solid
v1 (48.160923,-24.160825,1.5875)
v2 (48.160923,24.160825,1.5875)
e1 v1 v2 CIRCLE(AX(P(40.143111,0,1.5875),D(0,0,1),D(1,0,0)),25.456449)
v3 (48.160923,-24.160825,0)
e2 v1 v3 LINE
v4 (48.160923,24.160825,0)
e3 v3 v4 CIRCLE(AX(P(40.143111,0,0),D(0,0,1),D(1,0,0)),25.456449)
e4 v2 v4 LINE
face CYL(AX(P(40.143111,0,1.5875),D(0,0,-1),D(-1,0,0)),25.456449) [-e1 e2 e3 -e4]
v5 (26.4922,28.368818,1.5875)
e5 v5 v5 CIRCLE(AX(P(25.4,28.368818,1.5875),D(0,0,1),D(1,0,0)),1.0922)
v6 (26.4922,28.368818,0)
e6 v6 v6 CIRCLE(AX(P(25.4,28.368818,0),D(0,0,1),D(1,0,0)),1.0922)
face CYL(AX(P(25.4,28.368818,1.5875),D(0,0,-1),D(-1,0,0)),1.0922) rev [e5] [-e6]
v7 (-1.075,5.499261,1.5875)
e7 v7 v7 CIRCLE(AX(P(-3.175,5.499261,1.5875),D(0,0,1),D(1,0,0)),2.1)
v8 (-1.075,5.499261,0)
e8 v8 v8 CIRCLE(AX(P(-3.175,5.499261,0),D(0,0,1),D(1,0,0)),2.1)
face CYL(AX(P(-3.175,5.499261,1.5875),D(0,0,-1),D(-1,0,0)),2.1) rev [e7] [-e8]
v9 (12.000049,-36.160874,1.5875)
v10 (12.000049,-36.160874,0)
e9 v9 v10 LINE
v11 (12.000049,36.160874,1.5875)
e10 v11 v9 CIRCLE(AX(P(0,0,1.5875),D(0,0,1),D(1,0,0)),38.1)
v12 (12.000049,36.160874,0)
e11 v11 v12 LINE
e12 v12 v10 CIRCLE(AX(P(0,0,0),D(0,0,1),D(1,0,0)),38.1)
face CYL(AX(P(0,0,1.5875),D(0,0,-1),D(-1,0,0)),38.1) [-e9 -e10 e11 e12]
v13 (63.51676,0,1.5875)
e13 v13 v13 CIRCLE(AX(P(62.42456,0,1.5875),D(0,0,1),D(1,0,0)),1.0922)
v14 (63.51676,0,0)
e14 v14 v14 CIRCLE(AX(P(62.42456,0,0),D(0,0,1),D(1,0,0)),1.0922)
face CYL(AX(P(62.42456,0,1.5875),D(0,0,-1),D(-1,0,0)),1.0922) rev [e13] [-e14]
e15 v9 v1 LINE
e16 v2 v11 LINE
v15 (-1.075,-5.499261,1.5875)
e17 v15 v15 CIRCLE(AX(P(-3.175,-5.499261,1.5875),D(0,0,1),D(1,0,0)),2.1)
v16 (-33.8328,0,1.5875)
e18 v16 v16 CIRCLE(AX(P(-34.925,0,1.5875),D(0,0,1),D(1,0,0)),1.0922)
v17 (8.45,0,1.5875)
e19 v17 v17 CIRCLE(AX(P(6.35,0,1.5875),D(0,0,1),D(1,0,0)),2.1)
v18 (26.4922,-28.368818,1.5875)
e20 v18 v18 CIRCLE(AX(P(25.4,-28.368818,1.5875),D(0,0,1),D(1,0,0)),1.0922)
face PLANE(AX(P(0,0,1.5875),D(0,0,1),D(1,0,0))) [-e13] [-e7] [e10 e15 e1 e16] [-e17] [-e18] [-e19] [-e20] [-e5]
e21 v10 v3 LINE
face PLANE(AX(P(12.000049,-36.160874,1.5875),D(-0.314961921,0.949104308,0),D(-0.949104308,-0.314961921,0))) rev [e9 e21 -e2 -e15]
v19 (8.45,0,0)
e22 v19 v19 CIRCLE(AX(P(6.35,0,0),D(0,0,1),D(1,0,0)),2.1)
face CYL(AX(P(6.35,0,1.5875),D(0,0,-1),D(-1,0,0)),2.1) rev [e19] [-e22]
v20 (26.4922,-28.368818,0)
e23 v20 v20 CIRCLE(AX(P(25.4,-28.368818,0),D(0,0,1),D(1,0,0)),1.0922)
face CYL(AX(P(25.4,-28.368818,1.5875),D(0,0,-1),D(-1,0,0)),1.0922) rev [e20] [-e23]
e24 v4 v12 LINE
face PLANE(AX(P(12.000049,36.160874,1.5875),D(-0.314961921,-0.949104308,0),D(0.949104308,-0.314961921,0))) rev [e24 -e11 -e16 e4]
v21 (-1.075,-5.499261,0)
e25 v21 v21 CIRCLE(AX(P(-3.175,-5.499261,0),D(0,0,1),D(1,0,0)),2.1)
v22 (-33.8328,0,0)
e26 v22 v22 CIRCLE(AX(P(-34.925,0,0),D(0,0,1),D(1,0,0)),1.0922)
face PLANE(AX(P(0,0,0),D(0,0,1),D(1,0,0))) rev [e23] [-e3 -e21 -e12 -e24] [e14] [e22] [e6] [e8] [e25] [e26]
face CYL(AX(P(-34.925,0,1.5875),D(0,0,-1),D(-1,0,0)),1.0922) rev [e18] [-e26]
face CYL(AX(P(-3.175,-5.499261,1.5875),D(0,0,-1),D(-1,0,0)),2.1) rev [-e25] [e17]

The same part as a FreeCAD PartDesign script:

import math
import FreeCAD as App
import Part
import Sketcher
from FreeCAD import Vector
Q = App.Units.Quantity

doc = App.newDocument("Part")
params = doc.addObject("Spreadsheet::Sheet", "Params")
for row, (alias, value) in enumerate([
    ("sketch1_radius", "1.5 in"),
    ("sketch1_diameter", "0.086 in"),
    ("sketch1_length", "1.5 in"),
    ("pad1_length", "0.0625 in"),
], start=1):
    params.set(f"A{row}", alias)
    params.set(f"B{row}", "=" + value)
    params.setAlias(f"B{row}", alias)

body = doc.addObject("PartDesign::Body", "Body")

sketch1 = body.newObject("Sketcher::SketchObject", "Sketch")
sketch1.AttachmentSupport = (doc.getObject("XY_Plane"), [""])
sketch1.MapMode = "FlatFace"
sketch1.addGeometry([
    Part.LineSegment(Vector(48.2, 24.2, 0), Vector(12, 36.2, 0)),
    Part.ArcOfCircle(Part.Circle(Vector(0, 0, 0), Vector(0, 0, 1), 38.1), math.radians(72), math.radians(288)),
    Part.LineSegment(Vector(12, -36.2, 0), Vector(48.2, -24.2, 0)),
    Part.ArcOfCircle(Part.Circle(Vector(40.1, 0, 0), Vector(0, 0, 1), 25.5), math.radians(-72), math.radians(72)),
    Part.Circle(Vector(25.4, -28.4, 0), Vector(0, 0, 1), 1.1),
    Part.Circle(Vector(62.4, 0, 0), Vector(0, 0, 1), 1.1),
    Part.Circle(Vector(6.3, 0, 0), Vector(0, 0, 1), 2.1),
    Part.Circle(Vector(-3.2, -5.5, 0), Vector(0, 0, 1), 2.1),
    Part.Circle(Vector(-34.9, 0, 0), Vector(0, 0, 1), 1.1),
    Part.Circle(Vector(25.4, 28.4, 0), Vector(0, 0, 1), 1.1),
    Part.Circle(Vector(-3.2, 5.5, 0), Vector(0, 0, 1), 2.1),
], False)
sketch1.addConstraint([
    Sketcher.Constraint("Tangent", 0, 2, 1, 1),
    Sketcher.Constraint("Tangent", 1, 2, 2, 1),
    Sketcher.Constraint("Tangent", 2, 2, 3, 1),
    Sketcher.Constraint("Tangent", 3, 2, 0, 1),
    Sketcher.Constraint("Coincident", 1, 3, -1, 1),
    Sketcher.Constraint("Equal", 4, 5),
    Sketcher.Constraint("Equal", 6, 7),
    Sketcher.Constraint("Equal", 5, 8),
    Sketcher.Constraint("Equal", 8, 9),
    Sketcher.Constraint("Equal", 7, 10),
    Sketcher.Constraint("Symmetric", 4, 3, 9, 3, -1),
    Sketcher.Constraint("Symmetric", 7, 3, 10, 3, -1),
    Sketcher.Constraint("PointOnObject", 3, 3, -1),
    Sketcher.Constraint("PointOnObject", 5, 3, -1),
    Sketcher.Constraint("PointOnObject", 6, 3, -1),
    Sketcher.Constraint("PointOnObject", 8, 3, -1),
    Sketcher.Constraint("Radius", 1, Q("1.5 in")),
    Sketcher.Constraint("Diameter", 4, Q("0.086 in")),
    Sketcher.Constraint("DistanceX", -1, 1, 4, 3, Q("1 in")),
    Sketcher.Constraint("Distance", 0, Q("1.5 in")),
    Sketcher.Constraint("Diameter", 6, 4.2),
    Sketcher.Constraint("DistanceX", -1, 1, 6, 3, Q("0.25 in")),
    Sketcher.Constraint("DistanceX", 8, 3, 7, 3, Q("1.25 in")),
    Sketcher.Constraint("DistanceX", 7, 3, -1, 1, Q("0.125 in")),
    Sketcher.Constraint("Radius", 3, 25.456449),
    Sketcher.Constraint("DistanceX", -1, 1, 5, 3, 62.42456),
    Sketcher.Constraint("DistanceY", 7, 3, -1, 1, 5.499261),
    Sketcher.Constraint("DistanceY", 7, 3, 9, 3, 33.868079),
])
sketch1.setExpression("Constraints[16]", "Params.sketch1_radius")
sketch1.setExpression("Constraints[17]", "Params.sketch1_diameter")
sketch1.setExpression("Constraints[19]", "Params.sketch1_length")
pad1 = body.newObject("PartDesign::Pad", "Pad")
pad1.Profile = sketch1
pad1.setExpression("Length", "Params.pad1_length")

doc.recompute()
